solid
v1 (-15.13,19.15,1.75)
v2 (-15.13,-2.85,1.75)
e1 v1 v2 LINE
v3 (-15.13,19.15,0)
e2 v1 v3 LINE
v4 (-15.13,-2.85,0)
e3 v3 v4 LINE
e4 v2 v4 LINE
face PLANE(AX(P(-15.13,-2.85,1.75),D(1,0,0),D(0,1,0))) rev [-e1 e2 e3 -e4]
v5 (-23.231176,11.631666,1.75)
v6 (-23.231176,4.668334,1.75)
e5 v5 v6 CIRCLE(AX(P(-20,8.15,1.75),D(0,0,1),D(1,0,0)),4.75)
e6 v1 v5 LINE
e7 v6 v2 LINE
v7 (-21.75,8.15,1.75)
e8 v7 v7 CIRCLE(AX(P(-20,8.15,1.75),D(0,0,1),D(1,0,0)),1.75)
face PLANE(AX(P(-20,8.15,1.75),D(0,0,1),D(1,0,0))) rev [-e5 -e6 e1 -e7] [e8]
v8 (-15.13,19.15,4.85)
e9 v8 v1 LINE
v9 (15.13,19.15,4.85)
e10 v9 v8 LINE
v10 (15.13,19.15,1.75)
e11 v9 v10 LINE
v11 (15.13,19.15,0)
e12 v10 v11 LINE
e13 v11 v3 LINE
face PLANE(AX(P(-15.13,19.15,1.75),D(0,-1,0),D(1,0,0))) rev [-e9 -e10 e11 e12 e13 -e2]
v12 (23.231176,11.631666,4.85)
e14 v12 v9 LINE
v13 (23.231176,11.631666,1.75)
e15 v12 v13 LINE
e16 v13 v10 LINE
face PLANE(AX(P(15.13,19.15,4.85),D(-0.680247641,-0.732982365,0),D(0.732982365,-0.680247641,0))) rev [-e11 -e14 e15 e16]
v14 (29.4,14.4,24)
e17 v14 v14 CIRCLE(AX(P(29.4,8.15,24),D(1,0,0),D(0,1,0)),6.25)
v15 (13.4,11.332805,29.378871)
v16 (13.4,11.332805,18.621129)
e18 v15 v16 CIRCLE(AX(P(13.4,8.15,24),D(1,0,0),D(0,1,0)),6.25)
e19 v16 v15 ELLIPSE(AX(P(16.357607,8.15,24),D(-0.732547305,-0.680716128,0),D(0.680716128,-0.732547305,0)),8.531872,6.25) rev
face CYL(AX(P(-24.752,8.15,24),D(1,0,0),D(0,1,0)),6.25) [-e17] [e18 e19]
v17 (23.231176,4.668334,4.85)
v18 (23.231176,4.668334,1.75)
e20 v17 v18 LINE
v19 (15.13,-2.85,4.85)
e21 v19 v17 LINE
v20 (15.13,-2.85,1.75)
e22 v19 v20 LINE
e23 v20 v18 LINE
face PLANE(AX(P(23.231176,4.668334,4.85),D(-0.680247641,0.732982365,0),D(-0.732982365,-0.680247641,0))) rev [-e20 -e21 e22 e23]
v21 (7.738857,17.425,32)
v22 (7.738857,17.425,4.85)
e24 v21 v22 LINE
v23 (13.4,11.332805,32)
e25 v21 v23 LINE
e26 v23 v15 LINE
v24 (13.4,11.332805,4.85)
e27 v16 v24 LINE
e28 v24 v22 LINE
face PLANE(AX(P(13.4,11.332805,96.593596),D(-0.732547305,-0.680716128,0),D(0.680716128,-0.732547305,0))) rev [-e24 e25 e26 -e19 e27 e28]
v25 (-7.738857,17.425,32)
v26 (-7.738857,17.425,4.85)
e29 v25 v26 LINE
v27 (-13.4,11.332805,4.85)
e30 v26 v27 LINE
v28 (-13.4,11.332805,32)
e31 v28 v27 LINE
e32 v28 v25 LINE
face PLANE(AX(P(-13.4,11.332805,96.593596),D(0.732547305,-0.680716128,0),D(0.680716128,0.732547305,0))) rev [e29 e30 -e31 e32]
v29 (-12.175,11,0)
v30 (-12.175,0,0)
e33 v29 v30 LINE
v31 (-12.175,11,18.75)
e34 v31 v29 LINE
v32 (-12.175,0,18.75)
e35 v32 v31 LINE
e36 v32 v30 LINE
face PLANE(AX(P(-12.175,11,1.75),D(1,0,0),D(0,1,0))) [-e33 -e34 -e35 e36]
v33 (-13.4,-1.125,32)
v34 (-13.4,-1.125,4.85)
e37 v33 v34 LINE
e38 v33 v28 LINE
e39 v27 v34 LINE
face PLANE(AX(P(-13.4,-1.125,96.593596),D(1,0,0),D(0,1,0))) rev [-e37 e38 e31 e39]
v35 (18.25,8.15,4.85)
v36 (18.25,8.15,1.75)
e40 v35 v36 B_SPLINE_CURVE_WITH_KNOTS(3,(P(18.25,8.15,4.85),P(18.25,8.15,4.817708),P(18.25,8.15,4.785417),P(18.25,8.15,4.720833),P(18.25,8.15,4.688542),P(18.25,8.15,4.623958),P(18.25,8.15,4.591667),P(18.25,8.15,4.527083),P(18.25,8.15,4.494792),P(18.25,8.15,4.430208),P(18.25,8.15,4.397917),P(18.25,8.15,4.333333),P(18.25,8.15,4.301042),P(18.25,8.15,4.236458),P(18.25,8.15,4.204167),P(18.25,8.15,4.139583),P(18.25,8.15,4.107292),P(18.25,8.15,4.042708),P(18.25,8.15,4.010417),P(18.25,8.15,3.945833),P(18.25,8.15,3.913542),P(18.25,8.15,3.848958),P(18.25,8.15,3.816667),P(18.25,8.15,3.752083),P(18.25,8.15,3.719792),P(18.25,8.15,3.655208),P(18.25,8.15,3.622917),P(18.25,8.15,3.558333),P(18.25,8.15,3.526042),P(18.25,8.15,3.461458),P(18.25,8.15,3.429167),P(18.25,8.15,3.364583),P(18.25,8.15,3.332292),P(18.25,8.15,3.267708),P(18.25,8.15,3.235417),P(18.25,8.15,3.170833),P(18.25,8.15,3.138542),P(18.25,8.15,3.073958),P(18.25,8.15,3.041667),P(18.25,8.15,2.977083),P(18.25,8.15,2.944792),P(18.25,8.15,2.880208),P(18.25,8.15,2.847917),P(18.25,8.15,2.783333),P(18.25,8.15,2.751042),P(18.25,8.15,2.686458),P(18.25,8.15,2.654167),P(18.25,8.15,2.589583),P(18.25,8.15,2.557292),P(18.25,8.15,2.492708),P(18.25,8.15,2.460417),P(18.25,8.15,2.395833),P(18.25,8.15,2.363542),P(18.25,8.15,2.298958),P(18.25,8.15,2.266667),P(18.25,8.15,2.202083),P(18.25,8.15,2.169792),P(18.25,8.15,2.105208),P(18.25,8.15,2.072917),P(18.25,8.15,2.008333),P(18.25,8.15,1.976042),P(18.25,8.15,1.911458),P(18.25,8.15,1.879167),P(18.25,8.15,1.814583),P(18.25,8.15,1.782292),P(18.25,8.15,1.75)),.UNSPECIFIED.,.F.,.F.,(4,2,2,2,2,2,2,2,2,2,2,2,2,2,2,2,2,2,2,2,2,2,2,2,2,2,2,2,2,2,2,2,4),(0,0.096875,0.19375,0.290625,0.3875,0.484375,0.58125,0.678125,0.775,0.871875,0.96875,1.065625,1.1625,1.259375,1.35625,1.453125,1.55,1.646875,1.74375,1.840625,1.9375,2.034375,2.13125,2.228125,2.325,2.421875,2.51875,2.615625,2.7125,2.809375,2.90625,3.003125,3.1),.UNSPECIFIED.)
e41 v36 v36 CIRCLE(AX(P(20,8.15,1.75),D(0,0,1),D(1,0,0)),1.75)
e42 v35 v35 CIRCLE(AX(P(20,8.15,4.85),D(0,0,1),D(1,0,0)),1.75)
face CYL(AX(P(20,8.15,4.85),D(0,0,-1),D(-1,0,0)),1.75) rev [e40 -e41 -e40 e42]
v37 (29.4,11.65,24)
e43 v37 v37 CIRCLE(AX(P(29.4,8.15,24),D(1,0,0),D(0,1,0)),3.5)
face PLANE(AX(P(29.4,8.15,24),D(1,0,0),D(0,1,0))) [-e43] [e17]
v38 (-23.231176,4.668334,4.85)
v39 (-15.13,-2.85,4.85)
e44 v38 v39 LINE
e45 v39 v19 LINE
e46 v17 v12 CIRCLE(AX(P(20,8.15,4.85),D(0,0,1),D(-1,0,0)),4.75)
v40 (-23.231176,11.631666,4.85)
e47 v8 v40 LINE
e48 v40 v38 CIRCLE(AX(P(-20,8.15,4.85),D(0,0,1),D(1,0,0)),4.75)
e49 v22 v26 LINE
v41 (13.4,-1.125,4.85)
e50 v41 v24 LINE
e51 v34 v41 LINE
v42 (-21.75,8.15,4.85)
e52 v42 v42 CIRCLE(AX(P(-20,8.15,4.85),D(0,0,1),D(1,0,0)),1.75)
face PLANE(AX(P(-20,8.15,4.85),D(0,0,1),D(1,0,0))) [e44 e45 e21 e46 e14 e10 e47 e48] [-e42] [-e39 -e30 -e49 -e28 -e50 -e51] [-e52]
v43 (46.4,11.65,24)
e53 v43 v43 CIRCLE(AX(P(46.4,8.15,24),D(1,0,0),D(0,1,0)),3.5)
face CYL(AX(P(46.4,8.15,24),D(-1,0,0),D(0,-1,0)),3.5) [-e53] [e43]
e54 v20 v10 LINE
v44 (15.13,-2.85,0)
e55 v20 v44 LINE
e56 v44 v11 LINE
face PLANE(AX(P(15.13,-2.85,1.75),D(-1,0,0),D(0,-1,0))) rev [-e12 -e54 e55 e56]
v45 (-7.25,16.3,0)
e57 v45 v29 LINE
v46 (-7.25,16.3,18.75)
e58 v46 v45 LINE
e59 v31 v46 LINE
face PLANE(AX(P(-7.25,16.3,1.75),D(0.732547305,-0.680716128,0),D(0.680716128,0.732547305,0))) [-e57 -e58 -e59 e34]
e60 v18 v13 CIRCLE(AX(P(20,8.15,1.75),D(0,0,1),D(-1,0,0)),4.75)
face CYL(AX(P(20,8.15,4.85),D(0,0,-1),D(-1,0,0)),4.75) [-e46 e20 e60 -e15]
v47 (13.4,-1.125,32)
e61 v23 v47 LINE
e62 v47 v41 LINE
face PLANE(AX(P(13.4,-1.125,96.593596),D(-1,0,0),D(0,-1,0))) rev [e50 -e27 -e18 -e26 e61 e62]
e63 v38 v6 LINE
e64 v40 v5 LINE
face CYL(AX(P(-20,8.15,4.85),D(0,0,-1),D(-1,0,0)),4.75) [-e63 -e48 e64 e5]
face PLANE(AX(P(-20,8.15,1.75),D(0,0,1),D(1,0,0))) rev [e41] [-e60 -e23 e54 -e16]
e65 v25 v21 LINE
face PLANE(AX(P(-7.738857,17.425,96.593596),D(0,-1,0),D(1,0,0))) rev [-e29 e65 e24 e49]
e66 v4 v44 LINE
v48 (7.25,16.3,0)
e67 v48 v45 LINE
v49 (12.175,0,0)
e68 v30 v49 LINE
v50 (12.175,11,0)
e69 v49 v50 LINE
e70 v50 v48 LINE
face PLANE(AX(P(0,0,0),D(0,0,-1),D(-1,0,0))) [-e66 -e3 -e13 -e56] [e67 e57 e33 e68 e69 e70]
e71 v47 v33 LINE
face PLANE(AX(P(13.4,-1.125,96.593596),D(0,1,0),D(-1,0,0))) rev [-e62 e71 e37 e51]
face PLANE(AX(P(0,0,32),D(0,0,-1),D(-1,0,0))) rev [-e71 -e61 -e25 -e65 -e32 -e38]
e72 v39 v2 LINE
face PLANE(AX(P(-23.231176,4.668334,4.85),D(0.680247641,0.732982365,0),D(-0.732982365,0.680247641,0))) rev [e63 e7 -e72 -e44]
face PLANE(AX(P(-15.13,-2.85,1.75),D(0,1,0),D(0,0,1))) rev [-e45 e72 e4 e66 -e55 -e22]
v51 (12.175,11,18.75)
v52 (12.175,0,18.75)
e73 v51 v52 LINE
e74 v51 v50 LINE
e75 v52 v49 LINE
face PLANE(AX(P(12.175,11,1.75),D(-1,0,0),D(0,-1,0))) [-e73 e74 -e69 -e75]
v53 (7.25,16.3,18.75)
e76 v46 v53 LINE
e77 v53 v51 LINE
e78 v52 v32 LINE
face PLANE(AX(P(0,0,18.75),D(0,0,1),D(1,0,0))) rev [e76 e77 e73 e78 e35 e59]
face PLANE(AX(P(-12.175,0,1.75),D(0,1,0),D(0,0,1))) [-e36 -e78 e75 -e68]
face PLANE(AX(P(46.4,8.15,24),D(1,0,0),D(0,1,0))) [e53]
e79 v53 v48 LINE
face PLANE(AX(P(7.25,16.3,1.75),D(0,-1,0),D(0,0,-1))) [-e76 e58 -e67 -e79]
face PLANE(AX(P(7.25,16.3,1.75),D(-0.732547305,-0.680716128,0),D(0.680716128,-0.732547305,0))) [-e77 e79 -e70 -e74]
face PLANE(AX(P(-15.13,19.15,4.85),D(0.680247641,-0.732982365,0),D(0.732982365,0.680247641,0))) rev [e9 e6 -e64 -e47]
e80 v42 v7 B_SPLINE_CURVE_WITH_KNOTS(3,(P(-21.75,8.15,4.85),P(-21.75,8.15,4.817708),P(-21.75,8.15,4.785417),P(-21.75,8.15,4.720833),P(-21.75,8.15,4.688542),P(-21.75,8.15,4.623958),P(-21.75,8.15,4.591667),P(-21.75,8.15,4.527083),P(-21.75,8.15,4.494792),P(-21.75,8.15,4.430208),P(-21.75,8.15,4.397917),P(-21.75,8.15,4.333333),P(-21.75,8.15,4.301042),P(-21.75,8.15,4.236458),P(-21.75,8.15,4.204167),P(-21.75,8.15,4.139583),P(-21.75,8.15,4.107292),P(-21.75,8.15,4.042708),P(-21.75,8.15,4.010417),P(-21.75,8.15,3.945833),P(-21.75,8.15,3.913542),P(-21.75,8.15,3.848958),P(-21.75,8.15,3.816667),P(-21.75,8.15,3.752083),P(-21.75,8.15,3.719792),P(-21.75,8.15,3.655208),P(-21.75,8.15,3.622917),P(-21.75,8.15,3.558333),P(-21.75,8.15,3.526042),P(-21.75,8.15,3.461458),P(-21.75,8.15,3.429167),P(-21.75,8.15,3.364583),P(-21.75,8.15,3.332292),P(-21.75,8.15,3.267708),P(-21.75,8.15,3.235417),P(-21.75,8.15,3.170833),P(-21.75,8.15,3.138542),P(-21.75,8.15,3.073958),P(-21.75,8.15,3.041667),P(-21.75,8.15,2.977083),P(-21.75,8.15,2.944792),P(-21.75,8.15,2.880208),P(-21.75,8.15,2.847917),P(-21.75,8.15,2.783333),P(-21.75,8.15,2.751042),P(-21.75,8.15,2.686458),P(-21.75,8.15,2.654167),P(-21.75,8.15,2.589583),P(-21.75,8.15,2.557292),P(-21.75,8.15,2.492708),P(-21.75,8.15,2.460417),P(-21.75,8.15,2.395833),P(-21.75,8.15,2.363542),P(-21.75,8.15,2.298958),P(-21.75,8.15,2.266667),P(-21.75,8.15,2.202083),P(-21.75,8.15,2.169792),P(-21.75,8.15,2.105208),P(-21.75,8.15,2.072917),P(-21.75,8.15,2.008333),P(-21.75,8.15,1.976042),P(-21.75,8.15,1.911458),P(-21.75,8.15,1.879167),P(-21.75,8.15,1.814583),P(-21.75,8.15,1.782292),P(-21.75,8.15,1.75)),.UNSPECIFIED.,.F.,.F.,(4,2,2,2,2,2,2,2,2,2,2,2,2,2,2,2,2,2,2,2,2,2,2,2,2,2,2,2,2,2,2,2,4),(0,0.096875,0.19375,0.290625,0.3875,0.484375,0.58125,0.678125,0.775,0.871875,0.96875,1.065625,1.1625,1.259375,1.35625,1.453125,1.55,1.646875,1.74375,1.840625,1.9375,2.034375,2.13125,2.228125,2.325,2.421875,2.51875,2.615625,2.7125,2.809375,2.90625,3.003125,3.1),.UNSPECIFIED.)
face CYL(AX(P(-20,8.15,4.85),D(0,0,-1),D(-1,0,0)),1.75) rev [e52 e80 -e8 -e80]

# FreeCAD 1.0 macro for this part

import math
import FreeCAD as App
import Part
import Sketcher

doc = App.newDocument("Part")
params = doc.addObject("Spreadsheet::Sheet", "Params")
for row, (alias, value) in enumerate([
    ("sketch1_height", "22 mm"),
    ("sketch1_height2", "11 mm"),
    ("sketch1_width", "14.5 mm"),
    ("sketch1_width2", "30.26 mm"),
    ("sketch1_width3", "24.35 mm"),
    ("pad1_length", "1.75 mm"),
    ("sketch2_diameter", "3.5 mm"),
    ("sketch2_radius", "4.75 mm"),
    ("sketch2_width", "30.26 mm"),
    ("pad2_length", "3.1 mm"),
    ("sketch3_width", "26.8 mm"),
    ("pad3_length", "27.15 mm"),
    ("sketch4_diameter", "12.5 mm"),
    ("pad4_length", "16 mm"),
    ("sketch5_diameter", "12.5 mm"),
    ("pad5_length", "2.850176 mm"),
    ("sketch6_diameter", "7 mm"),
    ("pad6_length", "17 mm"),
    ("sketch7_height", "11 mm"),
    ("sketch7_width", "14.5 mm"),
    ("sketch7_width2", "24.35 mm"),
    ("pocket1_length", "17 mm"),
], start=1):
    params.set(f"A{row}", alias)
    params.set(f"B{row}", "=" + value)
    params.setAlias(f"B{row}", alias)

body = doc.addObject("PartDesign::Body", "Body")

sketch1 = body.newObject("Sketcher::SketchObject", "Sketch")
sketch1.AttachmentSupport = (doc.getObject("XY_Plane"), [""])
sketch1.MapMode = "FlatFace"
sketch1.addGeometry([
    Part.LineSegment(App.Vector(-15, 19, 0), App.Vector(-15, -3, 0)),
    Part.LineSegment(App.Vector(-15, -3, 0), App.Vector(15, -3, 0)),
    Part.LineSegment(App.Vector(15, -3, 0), App.Vector(15, 19, 0)),
    Part.LineSegment(App.Vector(15, 19, 0), App.Vector(-15, 19, 0)),
    Part.LineSegment(App.Vector(-7, 16, 0), App.Vector(7, 16, 0)),
    Part.LineSegment(App.Vector(7, 16, 0), App.Vector(12, 11, 0)),
    Part.LineSegment(App.Vector(12, 11, 0), App.Vector(12, 0, 0)),
    Part.LineSegment(App.Vector(12, 0, 0), App.Vector(-12, 0, 0)),
    Part.LineSegment(App.Vector(-12, 0, 0), App.Vector(-12, 11, 0)),
    Part.LineSegment(App.Vector(-12, 11, 0), App.Vector(-7, 16, 0)),
], False)
sketch1.addConstraint([
    Sketcher.Constraint("Coincident", 0, 2, 1, 1),
    Sketcher.Constraint("Coincident", 1, 2, 2, 1),
    Sketcher.Constraint("Coincident", 2, 2, 3, 1),
    Sketcher.Constraint("Coincident", 3, 2, 0, 1),
    Sketcher.Constraint("Coincident", 4, 2, 5, 1),
    Sketcher.Constraint("Coincident", 5, 2, 6, 1),
    Sketcher.Constraint("Coincident", 6, 2, 7, 1),
    Sketcher.Constraint("Coincident", 7, 2, 8, 1),
    Sketcher.Constraint("Coincident", 8, 2, 9, 1),
    Sketcher.Constraint("Coincident", 9, 2, 4, 1),
    Sketcher.Constraint("Vertical", 0),
    Sketcher.Constraint("Horizontal", 1),
    Sketcher.Constraint("Vertical", 2),
    Sketcher.Constraint("Horizontal", 3),
    Sketcher.Constraint("Horizontal", 4),
    Sketcher.Constraint("Vertical", 6),
    Sketcher.Constraint("Horizontal", 7),
    Sketcher.Constraint("Vertical", 8),
    Sketcher.Constraint("Symmetric", 6, 2, 7, 2, -1, 1),
    Sketcher.Constraint("Horizontal", 5, 2, 8, 2),
    Sketcher.Constraint("Equal", 5, 9),
    Sketcher.Constraint("DistanceY", 0, 2, 0, 1, 22.0),
    Sketcher.Constraint("DistanceY", 6, 2, 6, 1, 11.0),
    Sketcher.Constraint("DistanceX", 4, 1, 4, 2, 14.5),
    Sketcher.Constraint("DistanceX", 1, 1, 1, 2, 30.26),
    Sketcher.Constraint("DistanceX", 7, 2, 7, 1, 24.35),
    Sketcher.Constraint("DistanceY", -1, 1, 4, 2, 16.3),
    Sketcher.Constraint("DistanceX", 0, 2, -1, 1, 15.13),
    Sketcher.Constraint("DistanceY", 0, 2, -1, 1, 2.85),
])
sketch1.setExpression("Constraints[21]", "Params.sketch1_height")
sketch1.setExpression("Constraints[22]", "Params.sketch1_height2")
sketch1.setExpression("Constraints[23]", "Params.sketch1_width")
sketch1.setExpression("Constraints[24]", "Params.sketch1_width2")
sketch1.setExpression("Constraints[25]", "Params.sketch1_width3")
pad1 = body.newObject("PartDesign::Pad", "Pad")
pad1.Profile = sketch1
pad1.setExpression("Length", "Params.pad1_length")

sketch2 = body.newObject("Sketcher::SketchObject", "Sketch001")
sketch2.AttachmentSupport = (doc.getObject("XY_Plane"), [""])
sketch2.MapMode = "FlatFace"
sketch2.AttachmentOffset = App.Placement(App.Vector(0, 0, 1.75), App.Rotation())
sketch2.addGeometry([
    Part.LineSegment(App.Vector(15.1, 19.1, 0), App.Vector(-15.1, 19.1, 0)),
    Part.LineSegment(App.Vector(-15.1, 19.1, 0), App.Vector(-23.2, 11.6, 0)),
    Part.ArcOfCircle(Part.Circle(App.Vector(-20, 8.2, 0), App.Vector(0, 0, 1), 4.8), math.radians(133), math.radians(227)),
    Part.LineSegment(App.Vector(-23.2, 4.7, 0), App.Vector(-15.1, -2.9, 0)),
    Part.LineSegment(App.Vector(-15.1, -2.9, 0), App.Vector(15.1, -2.9, 0)),
    Part.LineSegment(App.Vector(15.1, -2.9, 0), App.Vector(23.2, 4.7, 0)),
    Part.ArcOfCircle(Part.Circle(App.Vector(20, 8.2, 0), App.Vector(0, 0, 1), 4.8), math.radians(-47), math.radians(47)),
    Part.LineSegment(App.Vector(23.2, 11.6, 0), App.Vector(15.1, 19.1, 0)),
    Part.Circle(App.Vector(20, 8.2, 0), App.Vector(0, 0, 1), 1.8),
    Part.Circle(App.Vector(-20, 8.2, 0), App.Vector(0, 0, 1), 1.8),
], False)
sketch2.addConstraint([
    Sketcher.Constraint("Coincident", 0, 2, 1, 1),
    Sketcher.Constraint("Tangent", 1, 2, 2, 1),
    Sketcher.Constraint("Tangent", 2, 2, 3, 1),
    Sketcher.Constraint("Coincident", 3, 2, 4, 1),
    Sketcher.Constraint("Coincident", 4, 2, 5, 1),
    Sketcher.Constraint("Tangent", 5, 2, 6, 1),
    Sketcher.Constraint("Tangent", 6, 2, 7, 1),
    Sketcher.Constraint("Coincident", 7, 2, 0, 1),
    Sketcher.Constraint("Horizontal", 0),
    Sketcher.Constraint("Horizontal", 4),
    Sketcher.Constraint("Coincident", 8, 3, 6, 3),
    Sketcher.Constraint("Coincident", 9, 3, 2, 3),
    Sketcher.Constraint("Equal", 2, 6),
    Sketcher.Constraint("Equal", 8, 9),
    Sketcher.Constraint("Symmetric", 2, 3, 6, 3, -2),
    Sketcher.Constraint("Parallel", 1, 5),
    Sketcher.Constraint("Parallel", 3, 7),
    Sketcher.Constraint("Horizontal", 2, 2, 5, 2),
    Sketcher.Constraint("Vertical", 0, 2, 3, 2),
    Sketcher.Constraint("Diameter", 8, 3.5),
    Sketcher.Constraint("Radius", 2, 4.75),
    Sketcher.Constraint("DistanceX", 2, 3, -1, 1, 20.0),
    Sketcher.Constraint("DistanceY", 2, 3, 0, 2, 11.0),
    Sketcher.Constraint("DistanceX", 0, 2, 0, 1, 30.26),
    Sketcher.Constraint("DistanceY", -1, 1, 2, 3, 8.15),
])
sketch2.setExpression("Constraints[19]", "Params.sketch2_diameter")
sketch2.setExpression("Constraints[20]", "Params.sketch2_radius")
sketch2.setExpression("Constraints[23]", "Params.sketch2_width")
pad2 = body.newObject("PartDesign::Pad", "Pad001")
pad2.Profile = sketch2
pad2.setExpression("Length", "Params.pad2_length")

sketch3 = body.newObject("Sketcher::SketchObject", "Sketch002")
sketch3.AttachmentSupport = (doc.getObject("XY_Plane"), [""])
sketch3.MapMode = "FlatFace"
sketch3.AttachmentOffset = App.Placement(App.Vector(0, 0, 4.85), App.Rotation())
sketch3.addGeometry([
    Part.LineSegment(App.Vector(-13, -1, 0), App.Vector(13, -1, 0)),
    Part.LineSegment(App.Vector(13, -1, 0), App.Vector(13, 11, 0)),
    Part.LineSegment(App.Vector(13, 11, 0), App.Vector(8, 17, 0)),
    Part.LineSegment(App.Vector(8, 17, 0), App.Vector(-8, 17, 0)),
    Part.LineSegment(App.Vector(-8, 17, 0), App.Vector(-13, 11, 0)),
    Part.LineSegment(App.Vector(-13, 11, 0), App.Vector(-13, -1, 0)),
], False)
sketch3.addConstraint([
    Sketcher.Constraint("Coincident", 0, 2, 1, 1),
    Sketcher.Constraint("Coincident", 1, 2, 2, 1),
    Sketcher.Constraint("Coincident", 2, 2, 3, 1),
    Sketcher.Constraint("Coincident", 3, 2, 4, 1),
    Sketcher.Constraint("Coincident", 4, 2, 5, 1),
    Sketcher.Constraint("Coincident", 5, 2, 0, 1),
    Sketcher.Constraint("Horizontal", 0),
    Sketcher.Constraint("Vertical", 1),
    Sketcher.Constraint("Horizontal", 3),
    Sketcher.Constraint("Vertical", 5),
    Sketcher.Constraint("Symmetric", 1, 2, 4, 2, -2),
    Sketcher.Constraint("Equal", 2, 4),
    Sketcher.Constraint("DistanceX", 0, 1, 0, 2, 26.8),
    Sketcher.Constraint("DistanceY", 0, 2, 2, 2, 18.55),
    Sketcher.Constraint("DistanceY", 0, 2, -1, 1, 1.125),
    Sketcher.Constraint("DistanceX", 3, 2, 3, 1, 15.477713),
    Sketcher.Constraint("DistanceY", 1, 1, 1, 2, 12.457805),
])
sketch3.setExpression("Constraints[12]", "Params.sketch3_width")
pad3 = body.newObject("PartDesign::Pad", "Pad002")
pad3.Profile = sketch3
pad3.setExpression("Length", "Params.pad3_length")

sketch4 = body.newObject("Sketcher::SketchObject", "Sketch003")
sketch4.AttachmentSupport = (doc.getObject("YZ_Plane"), [""])
sketch4.MapMode = "FlatFace"
sketch4.AttachmentOffset = App.Placement(App.Vector(0, 0, 13.4), App.Rotation())
sketch4.addGeometry(Part.Circle(App.Vector(8, 24, 0), App.Vector(0, 0, 1), 6), False)
sketch4.addConstraint([
    Sketcher.Constraint("Diameter", 0, 12.5),
    Sketcher.Constraint("DistanceY", -1, 1, 0, 3, 24.0),
    Sketcher.Constraint("DistanceX", -1, 1, 0, 3, 8.15),
])
sketch4.setExpression("Constraints[0]", "Params.sketch4_diameter")
pad4 = body.newObject("PartDesign::Pad", "Pad003")
pad4.Profile = sketch4
pad4.setExpression("Length", "Params.pad4_length")

sketch5 = body.newObject("Sketcher::SketchObject", "Sketch004")
sketch5.AttachmentSupport = (doc.getObject("YZ_Plane"), [""])
sketch5.MapMode = "FlatFace"
sketch5.AttachmentOffset = App.Placement(App.Vector(0, 0, 13.4), App.Rotation())
sketch5.addGeometry(Part.Circle(App.Vector(8, 24, 0), App.Vector(0, 0, 1), 6), False)
sketch5.addConstraint([
    Sketcher.Constraint("Diameter", 0, 12.5),
    Sketcher.Constraint("DistanceY", -1, 1, 0, 3, 24.0),
    Sketcher.Constraint("DistanceX", -1, 1, 0, 3, 8.15),
])
sketch5.setExpression("Constraints[0]", "Params.sketch5_diameter")
pad5 = body.newObject("PartDesign::Pad", "Pad004")
pad5.Profile = sketch5
pad5.setExpression("Length", "Params.pad5_length")
pad5.Reversed = True

sketch6 = body.newObject("Sketcher::SketchObject", "Sketch005")
sketch6.AttachmentSupport = (doc.getObject("YZ_Plane"), [""])
sketch6.MapMode = "FlatFace"
sketch6.AttachmentOffset = App.Placement(App.Vector(0, 0, 29.4), App.Rotation())
sketch6.addGeometry(Part.Circle(App.Vector(8.2, 24, 0), App.Vector(0, 0, 1), 3.5), False)
sketch6.addConstraint([
    Sketcher.Constraint("Diameter", 0, 7.0),
    Sketcher.Constraint("DistanceY", -1, 1, 0, 3, 24.0),
    Sketcher.Constraint("DistanceX", -1, 1, 0, 3, 8.15),
])
sketch6.setExpression("Constraints[0]", "Params.sketch6_diameter")
pad6 = body.newObject("PartDesign::Pad", "Pad005")
pad6.Profile = sketch6
pad6.setExpression("Length", "Params.pad6_length")

sketch7 = body.newObject("Sketcher::SketchObject", "Sketch006")
sketch7.AttachmentSupport = (doc.getObject("XY_Plane"), [""])
sketch7.MapMode = "FlatFace"
sketch7.AttachmentOffset = App.Placement(App.Vector(0, 0, 1.75), App.Rotation())
sketch7.addGeometry([
    Part.LineSegment(App.Vector(12, 11, 0), App.Vector(12, 0, 0)),
    Part.LineSegment(App.Vector(12, 0, 0), App.Vector(-12, 0, 0)),
    Part.LineSegment(App.Vector(-12, 0, 0), App.Vector(-12, 11, 0)),
    Part.LineSegment(App.Vector(-12, 11, 0), App.Vector(-7, 16, 0)),
    Part.LineSegment(App.Vector(-7, 16, 0), App.Vector(7, 16, 0)),
    Part.LineSegment(App.Vector(7, 16, 0), App.Vector(12, 11, 0)),
], False)
sketch7.addConstraint([
    Sketcher.Constraint("Coincident", 0, 2, 1, 1),
    Sketcher.Constraint("Coincident", 1, 2, 2, 1),
    Sketcher.Constraint("Coincident", 2, 2, 3, 1),
    Sketcher.Constraint("Coincident", 3, 2, 4, 1),
    Sketcher.Constraint("Coincident", 4, 2, 5, 1),
    Sketcher.Constraint("Coincident", 5, 2, 0, 1),
    Sketcher.Constraint("Vertical", 0),
    Sketcher.Constraint("Horizontal", 1),
    Sketcher.Constraint("Vertical", 2),
    Sketcher.Constraint("Horizontal", 4),
    Sketcher.Constraint("Symmetric", 0, 2, 1, 2, -1, 1),
    Sketcher.Constraint("Horizontal", 2, 2, 5, 2),
    Sketcher.Constraint("Equal", 3, 5),
    Sketcher.Constraint("DistanceY", 0, 2, 0, 1, 11.0),
    Sketcher.Constraint("DistanceX", 4, 1, 4, 2, 14.5),
    Sketcher.Constraint("DistanceX", 1, 2, 1, 1, 24.35),
    Sketcher.Constraint("DistanceY", -1, 1, 3, 2, 16.3),
])
sketch7.setExpression("Constraints[13]", "Params.sketch7_height")
sketch7.setExpression("Constraints[14]", "Params.sketch7_width")
sketch7.setExpression("Constraints[15]", "Params.sketch7_width2")
pocket1 = body.newObject("PartDesign::Pocket", "Pocket")
pocket1.Profile = sketch7
pocket1.setExpression("Length", "Params.pocket1_length")
pocket1.Reversed = True

doc.recompute()
